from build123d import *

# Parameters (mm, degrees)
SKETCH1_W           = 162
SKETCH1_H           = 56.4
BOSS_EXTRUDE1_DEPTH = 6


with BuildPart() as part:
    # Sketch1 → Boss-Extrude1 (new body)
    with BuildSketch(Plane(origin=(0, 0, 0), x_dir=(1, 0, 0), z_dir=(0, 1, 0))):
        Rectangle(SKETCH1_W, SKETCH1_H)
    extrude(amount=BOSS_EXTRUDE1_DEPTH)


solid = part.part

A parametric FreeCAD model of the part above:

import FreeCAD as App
import Part
import Sketcher

V = App.Vector
Q = App.Units.Quantity


def add_polygon(sketch, points):
    """Adds a closed chain of lines whose ends are joined by coincident constraints."""
    first, n = sketch.GeometryCount, len(points)
    for a, b in zip(points, points[1:] + points[:1]):
        sketch.addGeometry(Part.LineSegment(App.Vector(*a, 0), App.Vector(*b, 0)), False)
    for i in range(n):
        sketch.addConstraint(Sketcher.Constraint("Coincident", first + i, 2, first + (i + 1) % n, 1))

doc = App.newDocument("Part")
body = doc.addObject("PartDesign::Body", "Body")

sketch1 = body.newObject("Sketcher::SketchObject", "Sketch")
sketch1.AttachmentSupport = (doc.getObject("XZ_Plane"), [""])
sketch1.MapMode = "FlatFace"
add_polygon(sketch1, [(-81, -28), (-81, 28), (81, 28), (81, -28)])
sketch1.addConstraint([
    Sketcher.Constraint("Vertical", 0),
    Sketcher.Constraint("Horizontal", 1),
    Sketcher.Constraint("Vertical", 2),
    Sketcher.Constraint("Horizontal", 3),
    Sketcher.Constraint("Symmetric", 0, 2, 2, 2, -1, 1),
    Sketcher.Constraint("DistanceX", 1, 1, 1, 2, Q("162 mm")),
    Sketcher.Constraint("DistanceY", 0, 1, 0, 2, Q("56.4 mm")),
])
pad1 = body.newObject("PartDesign::Pad", "Pad")
pad1.Profile = sketch1
pad1.Length = 6
pad1.Reversed = True

doc.recompute()
